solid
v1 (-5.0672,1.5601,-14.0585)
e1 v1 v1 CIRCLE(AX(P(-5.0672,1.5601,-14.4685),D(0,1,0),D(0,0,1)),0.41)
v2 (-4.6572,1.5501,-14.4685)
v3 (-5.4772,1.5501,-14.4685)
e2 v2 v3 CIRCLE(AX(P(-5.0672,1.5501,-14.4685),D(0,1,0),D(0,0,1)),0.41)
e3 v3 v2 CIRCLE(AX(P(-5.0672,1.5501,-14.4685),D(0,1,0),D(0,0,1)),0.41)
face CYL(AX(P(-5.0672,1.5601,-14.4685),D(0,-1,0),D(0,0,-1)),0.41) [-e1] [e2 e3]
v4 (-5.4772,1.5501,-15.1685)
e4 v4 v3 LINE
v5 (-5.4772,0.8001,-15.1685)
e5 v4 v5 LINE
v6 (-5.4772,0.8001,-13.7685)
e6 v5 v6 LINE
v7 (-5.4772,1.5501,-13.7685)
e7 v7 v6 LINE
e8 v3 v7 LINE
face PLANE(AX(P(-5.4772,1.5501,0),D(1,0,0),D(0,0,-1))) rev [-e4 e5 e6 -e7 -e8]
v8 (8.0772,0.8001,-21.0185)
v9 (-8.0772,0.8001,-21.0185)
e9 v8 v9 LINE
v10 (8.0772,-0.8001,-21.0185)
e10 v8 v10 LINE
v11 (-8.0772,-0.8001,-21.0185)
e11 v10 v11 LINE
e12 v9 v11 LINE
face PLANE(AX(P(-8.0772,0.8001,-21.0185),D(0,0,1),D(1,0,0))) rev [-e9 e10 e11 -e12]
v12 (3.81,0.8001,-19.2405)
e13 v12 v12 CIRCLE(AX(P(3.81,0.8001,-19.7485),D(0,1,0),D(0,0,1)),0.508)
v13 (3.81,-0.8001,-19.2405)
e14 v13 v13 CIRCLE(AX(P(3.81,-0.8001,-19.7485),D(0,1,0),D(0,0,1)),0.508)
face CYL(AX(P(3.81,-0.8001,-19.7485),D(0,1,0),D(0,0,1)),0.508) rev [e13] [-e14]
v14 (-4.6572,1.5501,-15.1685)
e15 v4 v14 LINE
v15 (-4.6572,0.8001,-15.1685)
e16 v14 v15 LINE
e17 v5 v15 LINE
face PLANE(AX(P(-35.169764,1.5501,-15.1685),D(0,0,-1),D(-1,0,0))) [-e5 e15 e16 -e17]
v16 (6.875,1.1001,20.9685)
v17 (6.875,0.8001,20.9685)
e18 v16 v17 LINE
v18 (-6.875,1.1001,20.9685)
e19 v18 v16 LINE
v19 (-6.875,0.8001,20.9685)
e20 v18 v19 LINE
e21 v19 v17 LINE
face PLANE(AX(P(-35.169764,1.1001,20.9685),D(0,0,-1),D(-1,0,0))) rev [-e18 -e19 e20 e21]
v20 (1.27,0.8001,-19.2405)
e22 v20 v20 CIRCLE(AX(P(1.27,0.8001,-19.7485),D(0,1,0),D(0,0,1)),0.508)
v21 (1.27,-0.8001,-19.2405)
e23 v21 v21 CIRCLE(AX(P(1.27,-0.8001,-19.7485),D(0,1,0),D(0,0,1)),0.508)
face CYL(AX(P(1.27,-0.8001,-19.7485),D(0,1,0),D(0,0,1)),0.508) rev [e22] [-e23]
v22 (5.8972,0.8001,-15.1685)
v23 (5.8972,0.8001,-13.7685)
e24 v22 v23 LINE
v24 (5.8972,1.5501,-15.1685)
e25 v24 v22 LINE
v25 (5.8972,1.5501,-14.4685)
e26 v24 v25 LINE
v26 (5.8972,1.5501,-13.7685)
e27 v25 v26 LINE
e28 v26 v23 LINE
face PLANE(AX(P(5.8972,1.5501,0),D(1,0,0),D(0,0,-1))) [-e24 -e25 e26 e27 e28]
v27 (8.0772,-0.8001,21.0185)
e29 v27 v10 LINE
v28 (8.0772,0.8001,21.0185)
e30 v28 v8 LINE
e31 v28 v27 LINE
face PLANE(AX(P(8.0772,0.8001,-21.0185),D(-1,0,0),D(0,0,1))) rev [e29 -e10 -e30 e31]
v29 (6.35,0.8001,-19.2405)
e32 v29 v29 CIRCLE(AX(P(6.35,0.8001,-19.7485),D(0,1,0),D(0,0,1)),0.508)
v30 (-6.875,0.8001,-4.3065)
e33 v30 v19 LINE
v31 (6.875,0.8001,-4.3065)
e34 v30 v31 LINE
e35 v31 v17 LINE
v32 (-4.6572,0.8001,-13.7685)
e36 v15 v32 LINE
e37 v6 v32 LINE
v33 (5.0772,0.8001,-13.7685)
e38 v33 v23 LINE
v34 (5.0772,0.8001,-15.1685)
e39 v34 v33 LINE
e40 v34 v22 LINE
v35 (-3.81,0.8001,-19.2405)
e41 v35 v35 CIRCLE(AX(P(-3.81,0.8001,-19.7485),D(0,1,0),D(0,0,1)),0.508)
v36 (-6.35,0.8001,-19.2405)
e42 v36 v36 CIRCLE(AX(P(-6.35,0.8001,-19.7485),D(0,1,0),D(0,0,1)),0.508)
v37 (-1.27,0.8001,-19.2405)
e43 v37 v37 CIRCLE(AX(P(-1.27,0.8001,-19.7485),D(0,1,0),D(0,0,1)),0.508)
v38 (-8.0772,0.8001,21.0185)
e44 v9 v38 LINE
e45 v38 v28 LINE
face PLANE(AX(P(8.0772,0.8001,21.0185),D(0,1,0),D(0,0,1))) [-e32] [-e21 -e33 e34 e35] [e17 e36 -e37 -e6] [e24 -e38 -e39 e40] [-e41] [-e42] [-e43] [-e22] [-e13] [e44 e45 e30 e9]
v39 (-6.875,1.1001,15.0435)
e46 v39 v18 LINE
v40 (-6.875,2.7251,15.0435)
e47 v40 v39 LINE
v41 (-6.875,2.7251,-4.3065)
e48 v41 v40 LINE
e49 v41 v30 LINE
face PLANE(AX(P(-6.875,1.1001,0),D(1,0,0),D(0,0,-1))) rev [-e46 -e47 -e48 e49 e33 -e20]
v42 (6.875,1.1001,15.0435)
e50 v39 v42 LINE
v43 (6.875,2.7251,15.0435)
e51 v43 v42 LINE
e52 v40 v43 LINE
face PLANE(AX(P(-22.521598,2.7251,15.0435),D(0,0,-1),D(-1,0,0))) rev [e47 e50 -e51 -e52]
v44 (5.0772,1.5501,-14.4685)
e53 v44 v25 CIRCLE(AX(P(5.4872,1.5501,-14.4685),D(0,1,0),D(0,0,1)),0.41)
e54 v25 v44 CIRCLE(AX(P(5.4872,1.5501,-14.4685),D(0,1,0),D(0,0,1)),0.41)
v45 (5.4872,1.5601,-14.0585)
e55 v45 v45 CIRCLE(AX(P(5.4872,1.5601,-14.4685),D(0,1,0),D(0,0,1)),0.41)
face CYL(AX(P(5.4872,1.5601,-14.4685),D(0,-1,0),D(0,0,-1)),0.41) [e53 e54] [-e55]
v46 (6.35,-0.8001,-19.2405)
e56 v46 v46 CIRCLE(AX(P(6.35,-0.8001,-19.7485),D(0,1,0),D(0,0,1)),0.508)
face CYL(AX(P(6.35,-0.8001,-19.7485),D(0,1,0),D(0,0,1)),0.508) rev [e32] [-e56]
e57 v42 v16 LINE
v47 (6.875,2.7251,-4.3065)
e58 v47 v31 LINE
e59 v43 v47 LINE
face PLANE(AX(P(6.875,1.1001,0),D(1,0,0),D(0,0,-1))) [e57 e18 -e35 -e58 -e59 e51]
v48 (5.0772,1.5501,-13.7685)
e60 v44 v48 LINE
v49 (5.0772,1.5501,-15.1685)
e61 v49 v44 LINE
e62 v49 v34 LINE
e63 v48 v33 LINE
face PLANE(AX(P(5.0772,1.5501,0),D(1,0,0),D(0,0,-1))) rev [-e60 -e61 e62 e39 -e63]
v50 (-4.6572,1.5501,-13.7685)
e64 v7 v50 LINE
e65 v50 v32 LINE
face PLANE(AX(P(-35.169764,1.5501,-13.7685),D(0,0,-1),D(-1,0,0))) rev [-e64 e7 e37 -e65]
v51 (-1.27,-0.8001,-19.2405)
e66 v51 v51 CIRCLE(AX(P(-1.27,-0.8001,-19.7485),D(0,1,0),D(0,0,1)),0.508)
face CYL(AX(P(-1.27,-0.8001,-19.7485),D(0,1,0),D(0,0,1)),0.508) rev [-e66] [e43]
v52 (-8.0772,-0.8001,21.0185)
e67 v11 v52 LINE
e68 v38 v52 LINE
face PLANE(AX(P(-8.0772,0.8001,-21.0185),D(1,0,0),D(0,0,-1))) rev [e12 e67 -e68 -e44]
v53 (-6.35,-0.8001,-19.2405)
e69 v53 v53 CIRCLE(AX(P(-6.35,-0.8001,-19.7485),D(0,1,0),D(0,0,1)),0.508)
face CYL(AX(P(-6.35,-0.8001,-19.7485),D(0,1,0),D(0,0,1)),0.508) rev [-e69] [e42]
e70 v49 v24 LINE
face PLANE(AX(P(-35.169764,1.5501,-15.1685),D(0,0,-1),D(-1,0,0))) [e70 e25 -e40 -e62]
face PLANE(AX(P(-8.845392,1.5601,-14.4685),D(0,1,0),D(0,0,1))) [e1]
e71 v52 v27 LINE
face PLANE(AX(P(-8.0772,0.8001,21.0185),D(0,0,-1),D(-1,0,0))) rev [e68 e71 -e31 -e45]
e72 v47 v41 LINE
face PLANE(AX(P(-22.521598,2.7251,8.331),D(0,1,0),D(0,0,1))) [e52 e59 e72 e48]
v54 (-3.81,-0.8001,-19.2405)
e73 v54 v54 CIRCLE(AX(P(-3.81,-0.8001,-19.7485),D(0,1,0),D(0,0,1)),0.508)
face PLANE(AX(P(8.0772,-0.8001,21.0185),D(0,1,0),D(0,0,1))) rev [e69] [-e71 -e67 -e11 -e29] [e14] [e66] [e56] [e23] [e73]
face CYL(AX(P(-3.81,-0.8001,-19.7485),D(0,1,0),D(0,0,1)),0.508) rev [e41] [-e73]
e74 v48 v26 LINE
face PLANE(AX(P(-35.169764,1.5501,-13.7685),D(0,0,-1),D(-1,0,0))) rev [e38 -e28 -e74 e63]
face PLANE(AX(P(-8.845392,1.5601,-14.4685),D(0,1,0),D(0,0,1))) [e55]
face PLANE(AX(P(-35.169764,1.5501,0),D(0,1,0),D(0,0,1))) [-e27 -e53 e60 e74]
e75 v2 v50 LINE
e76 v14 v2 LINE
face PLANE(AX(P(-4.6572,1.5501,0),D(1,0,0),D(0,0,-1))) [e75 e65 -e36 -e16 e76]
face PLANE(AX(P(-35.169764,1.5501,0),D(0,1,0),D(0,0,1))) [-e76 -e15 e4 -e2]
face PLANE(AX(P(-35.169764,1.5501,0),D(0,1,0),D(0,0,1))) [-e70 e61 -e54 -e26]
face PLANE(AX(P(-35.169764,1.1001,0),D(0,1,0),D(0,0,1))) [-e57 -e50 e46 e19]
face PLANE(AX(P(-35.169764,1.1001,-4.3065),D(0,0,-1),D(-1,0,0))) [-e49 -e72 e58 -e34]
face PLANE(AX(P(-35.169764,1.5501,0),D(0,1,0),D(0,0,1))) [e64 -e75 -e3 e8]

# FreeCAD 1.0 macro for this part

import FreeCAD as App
import Part
import Sketcher
from FreeCAD import Vector
Q = App.Units.Quantity


def add_polygon(sketch, points):
    """Adds a closed chain of lines whose ends are joined by coincident constraints."""
    first, n = sketch.GeometryCount, len(points)
    for a, b in zip(points, points[1:] + points[:1]):
        sketch.addGeometry(Part.LineSegment(App.Vector(*a, 0), App.Vector(*b, 0)), False)
    for i in range(n):
        sketch.addConstraint(Sketcher.Constraint("Coincident", first + i, 2, first + (i + 1) % n, 1))

doc = App.newDocument("Part")
body = doc.addObject("PartDesign::Body", "Body")

# Sketch on XZ plane
sketch1 = body.newObject("Sketcher::SketchObject", "Sketch")
sketch1.AttachmentSupport = (doc.getObject("XZ_Plane"), [""])
sketch1.MapMode = "FlatFace"
add_polygon(sketch1, [(-8.0772, -21.0185), (-8.0772, 21.0185), (8.0772, 21.0185), (8.0772, -21.0185)])  # lines 0-3
sketch1.addConstraint(Sketcher.Constraint("Vertical", 0))
sketch1.addConstraint(Sketcher.Constraint("Horizontal", 1))
sketch1.addConstraint(Sketcher.Constraint("Vertical", 2))
sketch1.addConstraint(Sketcher.Constraint("Horizontal", 3))
sketch1.addConstraint(Sketcher.Constraint("Symmetric", 0, 2, 2, 2, -1, 1))
sketch1.addConstraint(Sketcher.Constraint("DistanceX", 1, 1, 1, 2, Q("0.636 in")))
sketch1.addConstraint(Sketcher.Constraint("DistanceY", 0, 1, 0, 2, Q("1.655 in")))
pad1 = body.newObject("PartDesign::Pad", "Pad")
pad1.Profile = sketch1
pad1.Length = Q("0.063 in")
pad1.Midplane = True

# Sketch on XZ plane
sketch2 = body.newObject("Sketcher::SketchObject", "Sketch001")
sketch2.AttachmentSupport = (doc.getObject("XZ_Plane"), [""])
sketch2.MapMode = "FlatFace"
sketch2.AttachmentOffset = App.Placement(Vector(0, 0, -0.0315 * 25.4), App.Rotation())
sketch2.addGeometry(Part.Circle(Vector(-6.35, -19.7485, 0), Vector(0, 0, 1), 0.508), False)
sketch2.addGeometry(Part.Circle(Vector(-3.81, -19.7485, 0), Vector(0, 0, 1), 0.508), False)
sketch2.addGeometry(Part.Circle(Vector(-1.27, -19.7485, 0), Vector(0, 0, 1), 0.508), False)
sketch2.addGeometry(Part.Circle(Vector(1.27, -19.7485, 0), Vector(0, 0, 1), 0.508), False)
sketch2.addGeometry(Part.Circle(Vector(3.81, -19.7485, 0), Vector(0, 0, 1), 0.508), False)
sketch2.addGeometry(Part.Circle(Vector(6.35, -19.7485, 0), Vector(0, 0, 1), 0.508), False)
sketch2.addConstraint(Sketcher.Constraint("Equal", 0, 1))
sketch2.addConstraint(Sketcher.Constraint("Equal", 1, 2))
sketch2.addConstraint(Sketcher.Constraint("Equal", 2, 3))
sketch2.addConstraint(Sketcher.Constraint("Equal", 3, 4))
sketch2.addConstraint(Sketcher.Constraint("Equal", 4, 5))
sketch2.addConstraint(Sketcher.Constraint("Symmetric", 2, 3, 3, 3, -2))
sketch2.addConstraint(Sketcher.Constraint("Symmetric", 1, 3, 4, 3, -2))
sketch2.addConstraint(Sketcher.Constraint("Symmetric", 0, 3, 5, 3, -2))
sketch2.addConstraint(Sketcher.Constraint("Horizontal", 0, 3, 1, 3))
sketch2.addConstraint(Sketcher.Constraint("Horizontal", 1, 3, 2, 3))
sketch2.addConstraint(Sketcher.Constraint("Diameter", 0, Q("0.04 in")))
sketch2.addConstraint(Sketcher.Constraint("DistanceX", 0, 3, 1, 3, Q("0.1 in")))
sketch2.addConstraint(Sketcher.Constraint("DistanceX", 1, 3, 2, 3, Q("0.1 in")))
sketch2.addConstraint(Sketcher.Constraint("DistanceX", 2, 3, 3, 3, Q("0.1 in")))
sketch2.addConstraint(Sketcher.Constraint("DistanceY", 0, 3, -1, 1, Q("0.7775 in")))
pocket1 = body.newObject("PartDesign::Pocket", "Pocket")
pocket1.Profile = sketch2
pocket1.Length = Q("0.063 in")
pocket1.Reversed = True

# Sketch on XZ plane
sketch3 = body.newObject("Sketcher::SketchObject", "Sketch002")
sketch3.AttachmentSupport = (doc.getObject("XZ_Plane"), [""])
sketch3.MapMode = "FlatFace"
sketch3.AttachmentOffset = App.Placement(Vector(0, 0, -0.0315 * 25.4), App.Rotation())
add_polygon(sketch3, [(-6.875, -4.3065), (-6.875, 20.9685), (6.875, 20.9685), (6.875, -4.3065)])  # lines 0-3
sketch3.addConstraint(Sketcher.Constraint("Vertical", 0))
sketch3.addConstraint(Sketcher.Constraint("Horizontal", 1))
sketch3.addConstraint(Sketcher.Constraint("Vertical", 2))
sketch3.addConstraint(Sketcher.Constraint("Horizontal", 3))
sketch3.addConstraint(Sketcher.Constraint("DistanceX", 1, 1, 1, 2, 13.75))
sketch3.addConstraint(Sketcher.Constraint("DistanceY", 0, 1, 0, 2, 25.275))
sketch3.addConstraint(Sketcher.Constraint("DistanceX", 0, 2, -1, 1, 6.875))
sketch3.addConstraint(Sketcher.Constraint("DistanceY", -1, 1, 0, 2, 20.9685))
pad2 = body.newObject("PartDesign::Pad", "Pad001")
pad2.Profile = sketch3
pad2.Length = 0.3
pad2.Reversed = True

# Sketch on XZ plane
sketch4 = body.newObject("Sketcher::SketchObject", "Sketch003")
sketch4.AttachmentSupport = (doc.getObject("XZ_Plane"), [""])
sketch4.MapMode = "FlatFace"
sketch4.AttachmentOffset = App.Placement(Vector(0, 0, -1.1001), App.Rotation())
add_polygon(sketch4, [(-6.875, -4.3065), (-6.875, 15.0435), (6.875, 15.0435), (6.875, -4.3065)])  # lines 0-3
sketch4.addConstraint(Sketcher.Constraint("Vertical", 0))
sketch4.addConstraint(Sketcher.Constraint("Horizontal", 1))
sketch4.addConstraint(Sketcher.Constraint("Vertical", 2))
sketch4.addConstraint(Sketcher.Constraint("Horizontal", 3))
sketch4.addConstraint(Sketcher.Constraint("DistanceX", 1, 1, 1, 2, 13.75))
sketch4.addConstraint(Sketcher.Constraint("DistanceY", 0, 1, 0, 2, 19.35))
sketch4.addConstraint(Sketcher.Constraint("DistanceX", 0, 2, -1, 1, 6.875))
sketch4.addConstraint(Sketcher.Constraint("DistanceY", -1, 1, 0, 2, 15.0435))
pad3 = body.newObject("PartDesign::Pad", "Pad002")
pad3.Profile = sketch4
pad3.Length = 1.625
pad3.Reversed = True

# Sketch on XZ plane
sketch5 = body.newObject("Sketcher::SketchObject", "Sketch004")
sketch5.AttachmentSupport = (doc.getObject("XZ_Plane"), [""])
sketch5.MapMode = "FlatFace"
sketch5.AttachmentOffset = App.Placement(Vector(0, 0, -0.0315 * 25.4), App.Rotation())
add_polygon(sketch5, [(-5.4772, -15.1685), (-5.4772, -13.7685), (-4.6572, -13.7685), (-4.6572, -15.1685)])  # lines 0-3
add_polygon(sketch5, [(5.0772, -15.1685), (5.0772, -13.7685), (5.8972, -13.7685), (5.8972, -15.1685)])  # lines 4-7
sketch5.addConstraint(Sketcher.Constraint("Vertical", 0))
sketch5.addConstraint(Sketcher.Constraint("Horizontal", 1))
sketch5.addConstraint(Sketcher.Constraint("Vertical", 2))
sketch5.addConstraint(Sketcher.Constraint("Horizontal", 3))
sketch5.addConstraint(Sketcher.Constraint("Vertical", 4))
sketch5.addConstraint(Sketcher.Constraint("Horizontal", 5))
sketch5.addConstraint(Sketcher.Constraint("Vertical", 6))
sketch5.addConstraint(Sketcher.Constraint("Horizontal", 7))
sketch5.addConstraint(Sketcher.Constraint("Horizontal", 1, 2, 4, 2))
sketch5.addConstraint(Sketcher.Constraint("Horizontal", 3, 2, 6, 2))
sketch5.addConstraint(Sketcher.Constraint("Equal", 3, 5))
sketch5.addConstraint(Sketcher.Constraint("DistanceX", 1, 1, 1, 2, 0.82))
sketch5.addConstraint(Sketcher.Constraint("DistanceY", 0, 1, 0, 2, 1.4))
sketch5.addConstraint(Sketcher.Constraint("DistanceX", 0, 2, -1, 1, 5.4772))
sketch5.addConstraint(Sketcher.Constraint("DistanceY", 0, 2, -1, 1, 13.7685))
sketch5.addConstraint(Sketcher.Constraint("DistanceX", -1, 1, 4, 2, 5.0772))
pad4 = body.newObject("PartDesign::Pad", "Pad003")
pad4.Profile = sketch5
pad4.Length = 0.75
pad4.Reversed = True

# Sketch on XZ plane
sketch6 = body.newObject("Sketcher::SketchObject", "Sketch005")
sketch6.AttachmentSupport = (doc.getObject("XZ_Plane"), [""])
sketch6.MapMode = "FlatFace"
sketch6.AttachmentOffset = App.Placement(Vector(0, 0, -1.5501), App.Rotation())
sketch6.addGeometry(Part.Circle(Vector(-5.0672, -14.4685, 0), Vector(0, 0, 1), 0.41), False)
sketch6.addGeometry(Part.Circle(Vector(5.4872, -14.4685, 0), Vector(0, 0, 1), 0.41), False)
sketch6.addConstraint(Sketcher.Constraint("Equal", 0, 1))
sketch6.addConstraint(Sketcher.Constraint("Horizontal", 0, 3, 1, 3))
sketch6.addConstraint(Sketcher.Constraint("Diameter", 0, 0.82))
sketch6.addConstraint(Sketcher.Constraint("DistanceX", 0, 3, -1, 1, 5.0672))
sketch6.addConstraint(Sketcher.Constraint("DistanceY", 0, 3, -1, 1, 14.4685))
sketch6.addConstraint(Sketcher.Constraint("DistanceX", -1, 1, 1, 3, 5.4872))
pad5 = body.newObject("PartDesign::Pad", "Pad004")
pad5.Profile = sketch6
pad5.Length = 0.01
pad5.Reversed = True

doc.recompute()
